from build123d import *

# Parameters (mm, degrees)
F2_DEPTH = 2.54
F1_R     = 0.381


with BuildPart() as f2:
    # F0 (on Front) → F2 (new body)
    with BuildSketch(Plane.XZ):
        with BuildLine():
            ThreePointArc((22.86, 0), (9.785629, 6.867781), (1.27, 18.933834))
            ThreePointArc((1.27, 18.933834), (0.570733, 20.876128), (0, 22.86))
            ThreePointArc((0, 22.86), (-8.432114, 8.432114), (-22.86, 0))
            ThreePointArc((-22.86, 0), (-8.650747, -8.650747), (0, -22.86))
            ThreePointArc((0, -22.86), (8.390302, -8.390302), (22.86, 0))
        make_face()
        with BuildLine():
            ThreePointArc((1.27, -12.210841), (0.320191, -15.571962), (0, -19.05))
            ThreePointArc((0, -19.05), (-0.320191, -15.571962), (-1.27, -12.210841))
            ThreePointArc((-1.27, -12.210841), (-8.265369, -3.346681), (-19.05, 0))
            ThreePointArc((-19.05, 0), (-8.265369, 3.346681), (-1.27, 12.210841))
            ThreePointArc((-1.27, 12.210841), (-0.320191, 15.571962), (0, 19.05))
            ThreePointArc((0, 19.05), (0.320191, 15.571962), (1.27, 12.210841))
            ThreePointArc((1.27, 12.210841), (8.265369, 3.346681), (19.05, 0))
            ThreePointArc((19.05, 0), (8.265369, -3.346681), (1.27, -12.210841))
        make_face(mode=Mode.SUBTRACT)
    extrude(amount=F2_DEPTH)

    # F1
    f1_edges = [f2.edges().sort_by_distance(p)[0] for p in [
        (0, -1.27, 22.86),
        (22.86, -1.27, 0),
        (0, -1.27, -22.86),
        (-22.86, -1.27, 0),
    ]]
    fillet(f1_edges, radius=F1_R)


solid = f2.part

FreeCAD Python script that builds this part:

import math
import FreeCAD as App
import Part
import Sketcher

V = App.Vector
Q = App.Units.Quantity


def edges_at(feature, points):
    """Names of the edges that pass closest to the given points."""
    edges = feature.Shape.Edges
    near = lambda p: min(range(len(edges)), key=lambda i: edges[i].distToShape(Part.Vertex(*p))[0])
    return sorted({f"Edge{near(p) + 1}" for p in points})

doc = App.newDocument("Part")
body = doc.addObject("PartDesign::Body", "Body")

sketch1 = body.newObject("Sketcher::SketchObject", "Sketch")
sketch1.AttachmentSupport = (doc.getObject("XZ_Plane"), [""])
sketch1.MapMode = "FlatFace"
sketch1.addGeometry([
    Part.ArcOfCircle(Part.Circle(V(30.6, 30.6, 0), V(0, 0, 1), 31.5), math.radians(-158), math.radians(-104)),
    Part.ArcOfCircle(Part.Circle(V(30.6, 30.6, 0), V(0, 0, 1), 31.5), math.radians(-165.83), math.radians(-158.32)),
    Part.ArcOfCircle(Part.Circle(V(-31.7, 31.7, 0), V(0, 0, 1), 32.9), math.radians(-74), math.radians(-16)),
    Part.ArcOfCircle(Part.Circle(V(-33.5, -33.5, 0), V(0, 0, 1), 35.2), math.radians(18), math.radians(72)),
    Part.ArcOfCircle(Part.Circle(V(31.4, -31.4, 0), V(0, 0, 1), 32.5), math.radians(105), math.radians(165)),
    Part.ArcOfCircle(Part.Circle(V(19.1, -19.1, 0), V(0, 0, 1), 19.1), math.radians(90), math.radians(159)),
    Part.ArcOfCircle(Part.Circle(V(19.1, -19.1, 0), V(0, 0, 1), 19.1), math.radians(159), math.radians(180)),
    Part.ArcOfCircle(Part.Circle(V(-19.1, -19.1, 0), V(0, 0, 1), 19.1), math.radians(0), math.radians(21)),
    Part.ArcOfCircle(Part.Circle(V(-19.1, -19.1, 0), V(0, 0, 1), 19.1), math.radians(21), math.radians(90)),
    Part.ArcOfCircle(Part.Circle(V(-19.1, 19.1, 0), V(0, 0, 1), 19.1), math.radians(-90), math.radians(-21)),
    Part.ArcOfCircle(Part.Circle(V(-19.1, 19.1, 0), V(0, 0, 1), 19.1), math.radians(-21), math.radians(0)),
    Part.ArcOfCircle(Part.Circle(V(19.1, 19.1, 0), V(0, 0, 1), 19.1), math.radians(-180), math.radians(-159)),
    Part.ArcOfCircle(Part.Circle(V(19.1, 19.1, 0), V(0, 0, 1), 19.1), math.radians(-159), math.radians(-90)),
], False)
sketch1.addConstraint([
    Sketcher.Constraint("Tangent", 0, 1, 1, 2),
    Sketcher.Constraint("Coincident", 1, 1, 2, 2),
    Sketcher.Constraint("Coincident", 2, 1, 3, 2),
    Sketcher.Constraint("Coincident", 3, 1, 4, 2),
    Sketcher.Constraint("Coincident", 4, 1, 0, 2),
    Sketcher.Constraint("Tangent", 5, 2, 6, 1),
    Sketcher.Constraint("Tangent", 6, 2, 7, 1),
    Sketcher.Constraint("Tangent", 7, 2, 8, 1),
    Sketcher.Constraint("Tangent", 8, 2, 9, 1),
    Sketcher.Constraint("Tangent", 9, 2, 10, 1),
    Sketcher.Constraint("Tangent", 10, 2, 11, 1),
    Sketcher.Constraint("Tangent", 11, 2, 12, 1),
    Sketcher.Constraint("Tangent", 12, 2, 5, 1),
    Sketcher.Constraint("Equal", 6, 7),
    Sketcher.Constraint("Equal", 5, 8),
    Sketcher.Constraint("Equal", 8, 9),
    Sketcher.Constraint("Equal", 7, 10),
    Sketcher.Constraint("Equal", 10, 11),
    Sketcher.Constraint("Equal", 9, 12),
    Sketcher.Constraint("Symmetric", 5, 3, 9, 3, -1, 1),
    Sketcher.Constraint("Symmetric", 1, 1, 3, 1, -1, 1),
    Sketcher.Constraint("Symmetric", 2, 1, 4, 1, -1, 1),
    Sketcher.Constraint("Symmetric", 5, 3, 7, 3, -2),
    Sketcher.Constraint("Symmetric", 5, 2, 7, 2, -2),
    Sketcher.Constraint("PointOnObject", 1, 1, -2),
    Sketcher.Constraint("PointOnObject", 2, 1, -1),
    Sketcher.Constraint("Horizontal", 9, 2, 11, 2),
    Sketcher.Constraint("Vertical", 0, 1, 5, 2),
    Sketcher.Constraint("Vertical", 7, 2, 9, 2),
    Sketcher.Constraint("Radius", 5, Q("0.75 in")),
    Sketcher.Constraint("DistanceY", -1, 1, 1, 1, Q("0.9 in")),
    Sketcher.Constraint("DistanceX", 2, 1, -1, 1, Q("0.9 in")),
    Sketcher.Constraint("DistanceX", 0, 1, 12, 3, Q("0.7 in")),
    Sketcher.Constraint("Radius", 1, Q("31.54515 mm")),
    Sketcher.Constraint("Radius", 2, Q("32.934838 mm")),
    Sketcher.Constraint("Radius", 3, Q("35.204338 mm")),
    Sketcher.Constraint("Radius", 0, Q("31.545247 mm")),
    Sketcher.Constraint("Radius", 4, Q("32.540533 mm")),
])
pad1 = body.newObject("PartDesign::Pad", "Pad")
pad1.Profile = sketch1
pad1.Length = Q("0.1 in")
doc.recompute()

fillet = body.newObject("PartDesign::Fillet", "Fillet")
fillet.Base = (pad1, edges_at(pad1, [
    (0, -1.27, 22.86),
    (22.86, -1.27, 0),
    (0, -1.27, -22.86),
    (-22.86, -1.27, 0),
]))
fillet.Radius = Q("0.015 in")

doc.recompute()
